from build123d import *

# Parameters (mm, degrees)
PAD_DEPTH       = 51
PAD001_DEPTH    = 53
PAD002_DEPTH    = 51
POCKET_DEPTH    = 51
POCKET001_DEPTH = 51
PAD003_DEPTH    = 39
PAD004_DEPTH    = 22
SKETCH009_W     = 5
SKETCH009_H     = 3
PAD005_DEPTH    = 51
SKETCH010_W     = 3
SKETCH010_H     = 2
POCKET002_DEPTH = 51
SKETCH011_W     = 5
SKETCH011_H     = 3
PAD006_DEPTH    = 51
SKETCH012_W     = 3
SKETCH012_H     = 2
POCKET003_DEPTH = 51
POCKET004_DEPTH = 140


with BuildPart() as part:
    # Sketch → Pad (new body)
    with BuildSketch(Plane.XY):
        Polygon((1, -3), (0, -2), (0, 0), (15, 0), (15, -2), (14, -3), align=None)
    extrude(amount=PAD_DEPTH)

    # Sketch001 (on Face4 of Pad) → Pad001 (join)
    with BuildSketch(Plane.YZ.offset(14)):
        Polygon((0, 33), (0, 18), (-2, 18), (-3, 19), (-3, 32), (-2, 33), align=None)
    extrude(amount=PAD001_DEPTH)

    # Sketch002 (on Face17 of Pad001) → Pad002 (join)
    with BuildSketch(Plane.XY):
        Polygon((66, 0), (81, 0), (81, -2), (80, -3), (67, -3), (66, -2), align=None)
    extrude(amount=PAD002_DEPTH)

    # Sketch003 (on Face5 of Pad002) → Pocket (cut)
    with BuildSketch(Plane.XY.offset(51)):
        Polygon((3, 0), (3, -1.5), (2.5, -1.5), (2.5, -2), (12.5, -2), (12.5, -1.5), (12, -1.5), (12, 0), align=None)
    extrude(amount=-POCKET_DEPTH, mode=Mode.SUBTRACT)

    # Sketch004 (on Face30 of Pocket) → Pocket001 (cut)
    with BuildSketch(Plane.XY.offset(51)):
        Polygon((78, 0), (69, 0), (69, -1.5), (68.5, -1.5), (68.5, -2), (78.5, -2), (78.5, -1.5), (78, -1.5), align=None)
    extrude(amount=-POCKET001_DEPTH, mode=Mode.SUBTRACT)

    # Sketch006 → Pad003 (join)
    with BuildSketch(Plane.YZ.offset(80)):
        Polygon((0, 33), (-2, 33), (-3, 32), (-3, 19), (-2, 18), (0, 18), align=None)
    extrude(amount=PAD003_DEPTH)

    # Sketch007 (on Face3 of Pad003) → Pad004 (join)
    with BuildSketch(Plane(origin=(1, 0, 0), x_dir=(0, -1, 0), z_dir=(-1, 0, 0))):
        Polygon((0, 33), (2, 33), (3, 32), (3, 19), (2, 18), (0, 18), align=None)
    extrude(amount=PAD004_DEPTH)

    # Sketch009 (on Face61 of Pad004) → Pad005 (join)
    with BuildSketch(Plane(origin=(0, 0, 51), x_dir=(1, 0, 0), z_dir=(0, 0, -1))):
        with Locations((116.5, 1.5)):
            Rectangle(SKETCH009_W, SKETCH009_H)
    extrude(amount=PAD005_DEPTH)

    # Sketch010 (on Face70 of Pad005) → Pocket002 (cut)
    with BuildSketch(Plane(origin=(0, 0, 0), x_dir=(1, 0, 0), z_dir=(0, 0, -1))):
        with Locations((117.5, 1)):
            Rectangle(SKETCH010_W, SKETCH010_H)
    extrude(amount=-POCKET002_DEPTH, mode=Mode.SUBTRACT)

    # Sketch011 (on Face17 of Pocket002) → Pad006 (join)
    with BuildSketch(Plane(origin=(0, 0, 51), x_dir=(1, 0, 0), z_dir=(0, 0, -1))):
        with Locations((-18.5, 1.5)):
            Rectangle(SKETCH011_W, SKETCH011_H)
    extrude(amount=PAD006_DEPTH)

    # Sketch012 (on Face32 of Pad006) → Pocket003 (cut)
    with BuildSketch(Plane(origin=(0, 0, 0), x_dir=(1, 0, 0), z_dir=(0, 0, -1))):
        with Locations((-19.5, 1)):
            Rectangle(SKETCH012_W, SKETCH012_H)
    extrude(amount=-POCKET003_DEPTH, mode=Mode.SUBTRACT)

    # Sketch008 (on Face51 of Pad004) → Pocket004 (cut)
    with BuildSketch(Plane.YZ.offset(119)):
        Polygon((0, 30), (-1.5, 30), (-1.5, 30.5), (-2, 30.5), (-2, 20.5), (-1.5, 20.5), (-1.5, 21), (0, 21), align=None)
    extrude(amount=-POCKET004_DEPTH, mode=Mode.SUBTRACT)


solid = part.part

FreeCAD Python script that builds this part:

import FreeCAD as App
import Part
import Sketcher
Q = App.Units.Quantity

doc = App.newDocument("Part")
body = doc.addObject("PartDesign::Body", "Body")

# Sketch on XY plane
sketch1 = body.newObject("Sketcher::SketchObject", "Sketch")
sketch1.AttachmentSupport = (doc.getObject("XY_Plane"), [""])
sketch1.MapMode = "FlatFace"
sketch1.addGeometry([
    Part.LineSegment(App.Vector(0, -2, 0), App.Vector(1, -3, 0)),  # 0
    Part.LineSegment(App.Vector(1, -3, 0), App.Vector(14, -3, 0)),  # 1
    Part.LineSegment(App.Vector(14, -3, 0), App.Vector(15, -2, 0)),  # 2
    Part.LineSegment(App.Vector(15, -2, 0), App.Vector(15, 0, 0)),  # 3
    Part.LineSegment(App.Vector(15, 0, 0), App.Vector(0, 0, 0)),  # 4
    Part.LineSegment(App.Vector(0, 0, 0), App.Vector(0, -2, 0)),  # 5
], False)
sketch1.addConstraint([
    Sketcher.Constraint("Coincident", 0, 2, 1, 1),
    Sketcher.Constraint("Coincident", 1, 2, 2, 1),
    Sketcher.Constraint("Coincident", 2, 2, 3, 1),
    Sketcher.Constraint("Coincident", 3, 2, 4, 1),
    Sketcher.Constraint("Coincident", 4, 2, 5, 1),
    Sketcher.Constraint("Coincident", 5, 2, 0, 1),
    Sketcher.Constraint("Horizontal", 1),
    Sketcher.Constraint("Vertical", 3),
    Sketcher.Constraint("Horizontal", 4),
    Sketcher.Constraint("Vertical", 5),
    Sketcher.Constraint("Coincident", 4, 2, -1, 1),
    Sketcher.Constraint("Perpendicular", 0, 2),
    Sketcher.Constraint("Horizontal", 2, 2, 5, 2),
    Sketcher.Constraint("Equal", 0, 2),
    Sketcher.Constraint("DistanceX", 1, 1, 1, 2, Q("13 mm")),
    Sketcher.Constraint("DistanceX", 4, 2, 4, 1, Q("15 mm")),
    Sketcher.Constraint("DistanceY", 3, 1, 3, 2, Q("2 mm")),
])
pad1 = body.newObject("PartDesign::Pad", "Pad")
pad1.Profile = sketch1
pad1.Length = 51

# Sketch on YZ plane
sketch2 = body.newObject("Sketcher::SketchObject", "Sketch001")
sketch2.AttachmentSupport = (doc.getObject("YZ_Plane"), [""])
sketch2.MapMode = "FlatFace"
sketch2.AttachmentOffset = App.Placement(App.Vector(0, 0, 14), App.Rotation())
sketch2.addGeometry([
    Part.LineSegment(App.Vector(0, 18, 0), App.Vector(0, 33, 0)),  # 0
    Part.LineSegment(App.Vector(0, 33, 0), App.Vector(-2, 33, 0)),  # 1
    Part.LineSegment(App.Vector(-2, 33, 0), App.Vector(-3, 32, 0)),  # 2
    Part.LineSegment(App.Vector(-3, 32, 0), App.Vector(-3, 19, 0)),  # 3
    Part.LineSegment(App.Vector(-3, 19, 0), App.Vector(-2, 18, 0)),  # 4
    Part.LineSegment(App.Vector(-2, 18, 0), App.Vector(0, 18, 0)),  # 5
], False)
sketch2.addConstraint([
    Sketcher.Constraint("Coincident", 0, 2, 1, 1),
    Sketcher.Constraint("Coincident", 1, 2, 2, 1),
    Sketcher.Constraint("Coincident", 2, 2, 3, 1),
    Sketcher.Constraint("Coincident", 3, 2, 4, 1),
    Sketcher.Constraint("Coincident", 4, 2, 5, 1),
    Sketcher.Constraint("Coincident", 5, 2, 0, 1),
    Sketcher.Constraint("Vertical", 0),
    Sketcher.Constraint("Horizontal", 1),
    Sketcher.Constraint("Vertical", 3),
    Sketcher.Constraint("Horizontal", 5),
    Sketcher.Constraint("PointOnObject", 0, 2, -2),
    Sketcher.Constraint("Perpendicular", 2, 4),
    Sketcher.Constraint("Vertical", 1, 2, 4, 2),
    Sketcher.Constraint("Equal", 2, 4),
    Sketcher.Constraint("DistanceX", 1, 2, 1, 1, Q("2 mm")),
    Sketcher.Constraint("DistanceY", 0, 1, 0, 2, Q("15 mm")),
    Sketcher.Constraint("DistanceY", 3, 2, 3, 1, Q("13 mm")),
    Sketcher.Constraint("DistanceY", -1, 1, 0, 2, Q("33 mm")),
])
pad2 = body.newObject("PartDesign::Pad", "Pad001")
pad2.Profile = sketch2
pad2.Length = 53

# Sketch on XY plane
sketch3 = body.newObject("Sketcher::SketchObject", "Sketch002")
sketch3.AttachmentSupport = (doc.getObject("XY_Plane"), [""])
sketch3.MapMode = "FlatFace"
sketch3.addGeometry([
    Part.LineSegment(App.Vector(81, 0, 0), App.Vector(66, 0, 0)),  # 0
    Part.LineSegment(App.Vector(66, 0, 0), App.Vector(66, -2, 0)),  # 1
    Part.LineSegment(App.Vector(66, -2, 0), App.Vector(67, -3, 0)),  # 2
    Part.LineSegment(App.Vector(67, -3, 0), App.Vector(80, -3, 0)),  # 3
    Part.LineSegment(App.Vector(80, -3, 0), App.Vector(81, -2, 0)),  # 4
    Part.LineSegment(App.Vector(81, -2, 0), App.Vector(81, 0, 0)),  # 5
], False)
sketch3.addConstraint([
    Sketcher.Constraint("Coincident", 0, 2, 1, 1),
    Sketcher.Constraint("Coincident", 1, 2, 2, 1),
    Sketcher.Constraint("Coincident", 2, 2, 3, 1),
    Sketcher.Constraint("Coincident", 3, 2, 4, 1),
    Sketcher.Constraint("Coincident", 4, 2, 5, 1),
    Sketcher.Constraint("Coincident", 5, 2, 0, 1),
    Sketcher.Constraint("Horizontal", 0),
    Sketcher.Constraint("Vertical", 1),
    Sketcher.Constraint("Horizontal", 3),
    Sketcher.Constraint("Vertical", 5),
    Sketcher.Constraint("PointOnObject", 0, 2, -1),
    Sketcher.Constraint("Perpendicular", 2, 4),
    Sketcher.Constraint("Horizontal", 1, 2, 4, 2),
    Sketcher.Constraint("Equal", 2, 4),
    Sketcher.Constraint("DistanceX", 0, 2, 0, 1, Q("15 mm")),
    Sketcher.Constraint("DistanceX", 3, 1, 3, 2, Q("13 mm")),
    Sketcher.Constraint("DistanceY", 1, 2, 1, 1, Q("2 mm")),
    Sketcher.Constraint("DistanceX", -1, 1, 0, 2, Q("66 mm")),
])
pad3 = body.newObject("PartDesign::Pad", "Pad002")
pad3.Profile = sketch3
pad3.Length = 51

# Sketch on XY plane
sketch4 = body.newObject("Sketcher::SketchObject", "Sketch003")
sketch4.AttachmentSupport = (doc.getObject("XY_Plane"), [""])
sketch4.MapMode = "FlatFace"
sketch4.AttachmentOffset = App.Placement(App.Vector(0, 0, 51), App.Rotation())
sketch4.addGeometry([
    Part.LineSegment(App.Vector(3, 0, 0), App.Vector(3, -1.5, 0)),  # 0
    Part.LineSegment(App.Vector(3, -1.5, 0), App.Vector(2.5, -1.5, 0)),  # 1
    Part.LineSegment(App.Vector(2.5, -1.5, 0), App.Vector(2.5, -2, 0)),  # 2
    Part.LineSegment(App.Vector(2.5, -2, 0), App.Vector(12.5, -2, 0)),  # 3
    Part.LineSegment(App.Vector(12.5, -2, 0), App.Vector(12.5, -1.5, 0)),  # 4
    Part.LineSegment(App.Vector(12.5, -1.5, 0), App.Vector(12, -1.5, 0)),  # 5
    Part.LineSegment(App.Vector(12, -1.5, 0), App.Vector(12, 0, 0)),  # 6
    Part.LineSegment(App.Vector(12, 0, 0), App.Vector(3, 0, 0)),  # 7
], False)
sketch4.addConstraint([
    Sketcher.Constraint("Coincident", 0, 2, 1, 1),
    Sketcher.Constraint("Coincident", 1, 2, 2, 1),
    Sketcher.Constraint("Coincident", 2, 2, 3, 1),
    Sketcher.Constraint("Coincident", 3, 2, 4, 1),
    Sketcher.Constraint("Coincident", 4, 2, 5, 1),
    Sketcher.Constraint("Coincident", 5, 2, 6, 1),
    Sketcher.Constraint("Coincident", 6, 2, 7, 1),
    Sketcher.Constraint("Coincident", 7, 2, 0, 1),
    Sketcher.Constraint("Vertical", 0),
    Sketcher.Constraint("Horizontal", 1),
    Sketcher.Constraint("Vertical", 2),
    Sketcher.Constraint("Horizontal", 3),
    Sketcher.Constraint("Vertical", 4),
    Sketcher.Constraint("Horizontal", 5),
    Sketcher.Constraint("Vertical", 6),
    Sketcher.Constraint("Horizontal", 7),
    Sketcher.Constraint("PointOnObject", 6, 2, -1),
    Sketcher.Constraint("Horizontal", 1, 2, 4, 2),
    Sketcher.Constraint("Equal", 1, 5),
    Sketcher.Constraint("Equal", 5, 2),
    Sketcher.Constraint("DistanceX", 3, 1, 3, 2, Q("10 mm")),
    Sketcher.Constraint("DistanceX", 7, 2, 7, 1, Q("9 mm")),
    Sketcher.Constraint("DistanceY", 0, 2, 0, 1, Q("1.5 mm")),
    Sketcher.Constraint("DistanceX", -1, 1, 0, 2, Q("3 mm")),
])
pocket1 = body.newObject("PartDesign::Pocket", "Pocket")
pocket1.Profile = sketch4
pocket1.Length = 51

# Sketch on XY plane
sketch5 = body.newObject("Sketcher::SketchObject", "Sketch004")
sketch5.AttachmentSupport = (doc.getObject("XY_Plane"), [""])
sketch5.MapMode = "FlatFace"
sketch5.AttachmentOffset = App.Placement(App.Vector(0, 0, 51), App.Rotation())
sketch5.addGeometry([
    Part.LineSegment(App.Vector(78, 0, 0), App.Vector(69, 0, 0)),  # 0
    Part.LineSegment(App.Vector(69, 0, 0), App.Vector(69, -1.5, 0)),  # 1
    Part.LineSegment(App.Vector(69, -1.5, 0), App.Vector(68.5, -1.5, 0)),  # 2
    Part.LineSegment(App.Vector(68.5, -1.5, 0), App.Vector(68.5, -2, 0)),  # 3
    Part.LineSegment(App.Vector(68.5, -2, 0), App.Vector(78.5, -2, 0)),  # 4
    Part.LineSegment(App.Vector(78.5, -2, 0), App.Vector(78.5, -1.5, 0)),  # 5
    Part.LineSegment(App.Vector(78.5, -1.5, 0), App.Vector(78, -1.5, 0)),  # 6
    Part.LineSegment(App.Vector(78, -1.5, 0), App.Vector(78, 0, 0)),  # 7
], False)
sketch5.addConstraint([
    Sketcher.Constraint("Coincident", 0, 2, 1, 1),
    Sketcher.Constraint("Coincident", 1, 2, 2, 1),
    Sketcher.Constraint("Coincident", 2, 2, 3, 1),
    Sketcher.Constraint("Coincident", 3, 2, 4, 1),
    Sketcher.Constraint("Coincident", 4, 2, 5, 1),
    Sketcher.Constraint("Coincident", 5, 2, 6, 1),
    Sketcher.Constraint("Coincident", 6, 2, 7, 1),
    Sketcher.Constraint("Coincident", 7, 2, 0, 1),
    Sketcher.Constraint("Horizontal", 0),
    Sketcher.Constraint("Vertical", 1),
    Sketcher.Constraint("Horizontal", 2),
    Sketcher.Constraint("Vertical", 3),
    Sketcher.Constraint("Horizontal", 4),
    Sketcher.Constraint("Vertical", 5),
    Sketcher.Constraint("Horizontal", 6),
    Sketcher.Constraint("Vertical", 7),
    Sketcher.Constraint("PointOnObject", 0, 2, -1),
    Sketcher.Constraint("Horizontal", 2, 2, 5, 2),
    Sketcher.Constraint("Equal", 2, 6),
    Sketcher.Constraint("Equal", 6, 3),
    Sketcher.Constraint("DistanceX", 0, 2, 0, 1, Q("9 mm")),
    Sketcher.Constraint("DistanceX", 4, 1, 4, 2, Q("10 mm")),
    Sketcher.Constraint("DistanceY", 1, 2, 1, 1, Q("1.5 mm")),
    Sketcher.Constraint("DistanceX", -1, 1, 0, 2, Q("69 mm")),
])
pocket2 = body.newObject("PartDesign::Pocket", "Pocket001")
pocket2.Profile = sketch5
pocket2.Length = 51

# Sketch on YZ plane
sketch6 = body.newObject("Sketcher::SketchObject", "Sketch005")
sketch6.AttachmentSupport = (doc.getObject("YZ_Plane"), [""])
sketch6.MapMode = "FlatFace"
sketch6.AttachmentOffset = App.Placement(App.Vector(0, 0, 80), App.Rotation())
sketch6.addGeometry([
    Part.LineSegment(App.Vector(0, 33, 0), App.Vector(-2, 33, 0)),  # 0
    Part.LineSegment(App.Vector(-2, 33, 0), App.Vector(-3, 32, 0)),  # 1
    Part.LineSegment(App.Vector(-3, 32, 0), App.Vector(-3, 19, 0)),  # 2
    Part.LineSegment(App.Vector(-3, 19, 0), App.Vector(-2, 18, 0)),  # 3
    Part.LineSegment(App.Vector(-2, 18, 0), App.Vector(0, 18, 0)),  # 4
    Part.LineSegment(App.Vector(0, 18, 0), App.Vector(0, 33, 0)),  # 5
], False)
sketch6.addConstraint([
    Sketcher.Constraint("Coincident", 0, 2, 1, 1),
    Sketcher.Constraint("Coincident", 1, 2, 2, 1),
    Sketcher.Constraint("Coincident", 2, 2, 3, 1),
    Sketcher.Constraint("Coincident", 3, 2, 4, 1),
    Sketcher.Constraint("Coincident", 4, 2, 5, 1),
    Sketcher.Constraint("Coincident", 5, 2, 0, 1),
    Sketcher.Constraint("Horizontal", 0),
    Sketcher.Constraint("Vertical", 2),
    Sketcher.Constraint("Horizontal", 4),
    Sketcher.Constraint("Vertical", 5),
    Sketcher.Constraint("PointOnObject", 4, 2, -2),
    Sketcher.Constraint("Perpendicular", 1, 3),
    Sketcher.Constraint("Vertical", 0, 2, 3, 2),
    Sketcher.Constraint("Equal", 1, 3),
    Sketcher.Constraint("DistanceX", 0, 2, 0, 1, Q("2 mm")),
    Sketcher.Constraint("DistanceY", 2, 2, 2, 1, Q("13 mm")),
    Sketcher.Constraint("DistanceY", 5, 1, 5, 2, Q("15 mm")),
    Sketcher.Constraint("DistanceY", -1, 1, 0, 2, Q("33 mm")),
])
pad4 = body.newObject("PartDesign::Pad", "Pad003")
pad4.Profile = sketch6
pad4.Length = 39

# Sketch on YZ plane
sketch7 = body.newObject("Sketcher::SketchObject", "Sketch006")
sketch7.AttachmentSupport = (doc.getObject("YZ_Plane"), [""])
sketch7.MapMode = "FlatFace"
sketch7.AttachmentOffset = App.Placement(App.Vector(0, 0, 1), App.Rotation())
sketch7.addGeometry([
    Part.LineSegment(App.Vector(-2, 33, 0), App.Vector(0, 33, 0)),  # 0
    Part.LineSegment(App.Vector(0, 33, 0), App.Vector(0, 18, 0)),  # 1
    Part.LineSegment(App.Vector(0, 18, 0), App.Vector(-2, 18, 0)),  # 2
    Part.LineSegment(App.Vector(-2, 18, 0), App.Vector(-3, 19, 0)),  # 3
    Part.LineSegment(App.Vector(-3, 19, 0), App.Vector(-3, 32, 0)),  # 4
    Part.LineSegment(App.Vector(-3, 32, 0), App.Vector(-2, 33, 0)),  # 5
], False)
sketch7.addConstraint([
    Sketcher.Constraint("Coincident", 0, 2, 1, 1),
    Sketcher.Constraint("Coincident", 1, 2, 2, 1),
    Sketcher.Constraint("Coincident", 2, 2, 3, 1),
    Sketcher.Constraint("Coincident", 3, 2, 4, 1),
    Sketcher.Constraint("Coincident", 4, 2, 5, 1),
    Sketcher.Constraint("Coincident", 5, 2, 0, 1),
    Sketcher.Constraint("Horizontal", 0),
    Sketcher.Constraint("Vertical", 1),
    Sketcher.Constraint("Horizontal", 2),
    Sketcher.Constraint("Vertical", 4),
    Sketcher.Constraint("PointOnObject", 0, 2, -2),
    Sketcher.Constraint("Perpendicular", 3, 5),
    Sketcher.Constraint("Vertical", 2, 2, 5, 2),
    Sketcher.Constraint("Equal", 3, 5),
    Sketcher.Constraint("DistanceX", 0, 1, 0, 2, Q("2 mm")),
    Sketcher.Constraint("DistanceY", 1, 2, 1, 1, Q("15 mm")),
    Sketcher.Constraint("DistanceY", 4, 1, 4, 2, Q("13 mm")),
    Sketcher.Constraint("DistanceY", -1, 1, 0, 2, Q("33 mm")),
])
pad5 = body.newObject("PartDesign::Pad", "Pad004")
pad5.Profile = sketch7
pad5.Length = 22
pad5.Reversed = True

# Sketch on XY plane
sketch8 = body.newObject("Sketcher::SketchObject", "Sketch007")
sketch8.AttachmentSupport = (doc.getObject("XY_Plane"), [""])
sketch8.MapMode = "FlatFace"
sketch8.AttachmentOffset = App.Placement(App.Vector(0, 0, 51), App.Rotation())
sketch8.addGeometry([
    Part.LineSegment(App.Vector(114, -3, 0), App.Vector(114, 0, 0)),
    Part.LineSegment(App.Vector(114, 0, 0), App.Vector(119, 0, 0)),
    Part.LineSegment(App.Vector(119, 0, 0), App.Vector(119, -3, 0)),
    Part.LineSegment(App.Vector(119, -3, 0), App.Vector(114, -3, 0)),
], False)
sketch8.addConstraint([
    Sketcher.Constraint("Coincident", 0, 2, 1, 1),
    Sketcher.Constraint("Coincident", 1, 2, 2, 1),
    Sketcher.Constraint("Coincident", 2, 2, 3, 1),
    Sketcher.Constraint("Coincident", 3, 2, 0, 1),
    Sketcher.Constraint("Vertical", 0),
    Sketcher.Constraint("Horizontal", 1),
    Sketcher.Constraint("Vertical", 2),
    Sketcher.Constraint("Horizontal", 3),
    Sketcher.Constraint("PointOnObject", 0, 2, -1),
    Sketcher.Constraint("DistanceX", 1, 1, 1, 2, Q("5 mm")),
    Sketcher.Constraint("DistanceY", 0, 1, 0, 2, Q("3 mm")),
    Sketcher.Constraint("DistanceX", -1, 1, 0, 2, Q("114 mm")),
])
pad6 = body.newObject("PartDesign::Pad", "Pad005")
pad6.Profile = sketch8
pad6.Length = 51
pad6.Reversed = True

# Sketch on XY plane
sketch9 = body.newObject("Sketcher::SketchObject", "Sketch008")
sketch9.AttachmentSupport = (doc.getObject("XY_Plane"), [""])
sketch9.MapMode = "FlatFace"
sketch9.addGeometry([
    Part.LineSegment(App.Vector(116, -2, 0), App.Vector(116, 0, 0)),
    Part.LineSegment(App.Vector(116, 0, 0), App.Vector(119, 0, 0)),
    Part.LineSegment(App.Vector(119, 0, 0), App.Vector(119, -2, 0)),
    Part.LineSegment(App.Vector(119, -2, 0), App.Vector(116, -2, 0)),
], False)
sketch9.addConstraint([
    Sketcher.Constraint("Coincident", 0, 2, 1, 1),
    Sketcher.Constraint("Coincident", 1, 2, 2, 1),
    Sketcher.Constraint("Coincident", 2, 2, 3, 1),
    Sketcher.Constraint("Coincident", 3, 2, 0, 1),
    Sketcher.Constraint("Vertical", 0),
    Sketcher.Constraint("Horizontal", 1),
    Sketcher.Constraint("Vertical", 2),
    Sketcher.Constraint("Horizontal", 3),
    Sketcher.Constraint("PointOnObject", 0, 2, -1),
    Sketcher.Constraint("DistanceX", 1, 1, 1, 2, Q("3 mm")),
    Sketcher.Constraint("DistanceY", 0, 1, 0, 2, Q("2 mm")),
    Sketcher.Constraint("DistanceX", -1, 1, 0, 2, Q("116 mm")),
])
pocket3 = body.newObject("PartDesign::Pocket", "Pocket002")
pocket3.Profile = sketch9
pocket3.Length = 51
pocket3.Reversed = True

# Sketch on XY plane
sketch10 = body.newObject("Sketcher::SketchObject", "Sketch009")
sketch10.AttachmentSupport = (doc.getObject("XY_Plane"), [""])
sketch10.MapMode = "FlatFace"
sketch10.AttachmentOffset = App.Placement(App.Vector(0, 0, 51), App.Rotation())
sketch10.addGeometry([
    Part.LineSegment(App.Vector(-21, -3, 0), App.Vector(-21, 0, 0)),
    Part.LineSegment(App.Vector(-21, 0, 0), App.Vector(-16, 0, 0)),
    Part.LineSegment(App.Vector(-16, 0, 0), App.Vector(-16, -3, 0)),
    Part.LineSegment(App.Vector(-16, -3, 0), App.Vector(-21, -3, 0)),
], False)
sketch10.addConstraint([
    Sketcher.Constraint("Coincident", 0, 2, 1, 1),
    Sketcher.Constraint("Coincident", 1, 2, 2, 1),
    Sketcher.Constraint("Coincident", 2, 2, 3, 1),
    Sketcher.Constraint("Coincident", 3, 2, 0, 1),
    Sketcher.Constraint("Vertical", 0),
    Sketcher.Constraint("Horizontal", 1),
    Sketcher.Constraint("Vertical", 2),
    Sketcher.Constraint("Horizontal", 3),
    Sketcher.Constraint("PointOnObject", 0, 2, -1),
    Sketcher.Constraint("DistanceX", 1, 1, 1, 2, Q("5 mm")),
    Sketcher.Constraint("DistanceY", 0, 1, 0, 2, Q("3 mm")),
    Sketcher.Constraint("DistanceX", 0, 2, -1, 1, Q("21 mm")),
])
pad7 = body.newObject("PartDesign::Pad", "Pad006")
pad7.Profile = sketch10
pad7.Length = 51
pad7.Reversed = True

# Sketch on XY plane
sketch11 = body.newObject("Sketcher::SketchObject", "Sketch010")
sketch11.AttachmentSupport = (doc.getObject("XY_Plane"), [""])
sketch11.MapMode = "FlatFace"
sketch11.addGeometry([
    Part.LineSegment(App.Vector(-21, -2, 0), App.Vector(-21, 0, 0)),
    Part.LineSegment(App.Vector(-21, 0, 0), App.Vector(-18, 0, 0)),
    Part.LineSegment(App.Vector(-18, 0, 0), App.Vector(-18, -2, 0)),
    Part.LineSegment(App.Vector(-18, -2, 0), App.Vector(-21, -2, 0)),
], False)
sketch11.addConstraint([
    Sketcher.Constraint("Coincident", 0, 2, 1, 1),
    Sketcher.Constraint("Coincident", 1, 2, 2, 1),
    Sketcher.Constraint("Coincident", 2, 2, 3, 1),
    Sketcher.Constraint("Coincident", 3, 2, 0, 1),
    Sketcher.Constraint("Vertical", 0),
    Sketcher.Constraint("Horizontal", 1),
    Sketcher.Constraint("Vertical", 2),
    Sketcher.Constraint("Horizontal", 3),
    Sketcher.Constraint("PointOnObject", 0, 2, -1),
    Sketcher.Constraint("DistanceX", 1, 1, 1, 2, Q("3 mm")),
    Sketcher.Constraint("DistanceY", 0, 1, 0, 2, Q("2 mm")),
    Sketcher.Constraint("DistanceX", 0, 2, -1, 1, Q("21 mm")),
])
pocket4 = body.newObject("PartDesign::Pocket", "Pocket003")
pocket4.Profile = sketch11
pocket4.Length = 51
pocket4.Reversed = True

# Sketch on YZ plane
sketch12 = body.newObject("Sketcher::SketchObject", "Sketch011")
sketch12.AttachmentSupport = (doc.getObject("YZ_Plane"), [""])
sketch12.MapMode = "FlatFace"
sketch12.AttachmentOffset = App.Placement(App.Vector(0, 0, 119), App.Rotation())
sketch12.addGeometry([
    Part.LineSegment(App.Vector(0, 30, 0), App.Vector(-1.5, 30, 0)),  # 0
    Part.LineSegment(App.Vector(-1.5, 30, 0), App.Vector(-1.5, 30.5, 0)),  # 1
    Part.LineSegment(App.Vector(-1.5, 30.5, 0), App.Vector(-2, 30.5, 0)),  # 2
    Part.LineSegment(App.Vector(-2, 30.5, 0), App.Vector(-2, 20.5, 0)),  # 3
    Part.LineSegment(App.Vector(-2, 20.5, 0), App.Vector(-1.5, 20.5, 0)),  # 4
    Part.LineSegment(App.Vector(-1.5, 20.5, 0), App.Vector(-1.5, 21, 0)),  # 5
    Part.LineSegment(App.Vector(-1.5, 21, 0), App.Vector(0, 21, 0)),  # 6
    Part.LineSegment(App.Vector(0, 21, 0), App.Vector(0, 30, 0)),  # 7
], False)
sketch12.addConstraint([
    Sketcher.Constraint("Coincident", 0, 2, 1, 1),
    Sketcher.Constraint("Coincident", 1, 2, 2, 1),
    Sketcher.Constraint("Coincident", 2, 2, 3, 1),
    Sketcher.Constraint("Coincident", 3, 2, 4, 1),
    Sketcher.Constraint("Coincident", 4, 2, 5, 1),
    Sketcher.Constraint("Coincident", 5, 2, 6, 1),
    Sketcher.Constraint("Coincident", 6, 2, 7, 1),
    Sketcher.Constraint("Coincident", 7, 2, 0, 1),
    Sketcher.Constraint("Horizontal", 0),
    Sketcher.Constraint("Vertical", 1),
    Sketcher.Constraint("Horizontal", 2),
    Sketcher.Constraint("Vertical", 3),
    Sketcher.Constraint("Horizontal", 4),
    Sketcher.Constraint("Vertical", 5),
    Sketcher.Constraint("Horizontal", 6),
    Sketcher.Constraint("Vertical", 7),
    Sketcher.Constraint("PointOnObject", 6, 2, -2),
    Sketcher.Constraint("Vertical", 1, 2, 4, 2),
    Sketcher.Constraint("Equal", 4, 1),
    Sketcher.Constraint("Equal", 1, 5),
    Sketcher.Constraint("DistanceY", 3, 2, 3, 1, Q("10 mm")),
    Sketcher.Constraint("DistanceY", 7, 1, 7, 2, Q("9 mm")),
    Sketcher.Constraint("DistanceX", 0, 2, 0, 1, Q("1.5 mm")),
    Sketcher.Constraint("DistanceY", -1, 1, 0, 2, Q("30 mm")),
])
pocket5 = body.newObject("PartDesign::Pocket", "Pocket004")
pocket5.Profile = sketch12
pocket5.Length = 140

doc.recompute()
